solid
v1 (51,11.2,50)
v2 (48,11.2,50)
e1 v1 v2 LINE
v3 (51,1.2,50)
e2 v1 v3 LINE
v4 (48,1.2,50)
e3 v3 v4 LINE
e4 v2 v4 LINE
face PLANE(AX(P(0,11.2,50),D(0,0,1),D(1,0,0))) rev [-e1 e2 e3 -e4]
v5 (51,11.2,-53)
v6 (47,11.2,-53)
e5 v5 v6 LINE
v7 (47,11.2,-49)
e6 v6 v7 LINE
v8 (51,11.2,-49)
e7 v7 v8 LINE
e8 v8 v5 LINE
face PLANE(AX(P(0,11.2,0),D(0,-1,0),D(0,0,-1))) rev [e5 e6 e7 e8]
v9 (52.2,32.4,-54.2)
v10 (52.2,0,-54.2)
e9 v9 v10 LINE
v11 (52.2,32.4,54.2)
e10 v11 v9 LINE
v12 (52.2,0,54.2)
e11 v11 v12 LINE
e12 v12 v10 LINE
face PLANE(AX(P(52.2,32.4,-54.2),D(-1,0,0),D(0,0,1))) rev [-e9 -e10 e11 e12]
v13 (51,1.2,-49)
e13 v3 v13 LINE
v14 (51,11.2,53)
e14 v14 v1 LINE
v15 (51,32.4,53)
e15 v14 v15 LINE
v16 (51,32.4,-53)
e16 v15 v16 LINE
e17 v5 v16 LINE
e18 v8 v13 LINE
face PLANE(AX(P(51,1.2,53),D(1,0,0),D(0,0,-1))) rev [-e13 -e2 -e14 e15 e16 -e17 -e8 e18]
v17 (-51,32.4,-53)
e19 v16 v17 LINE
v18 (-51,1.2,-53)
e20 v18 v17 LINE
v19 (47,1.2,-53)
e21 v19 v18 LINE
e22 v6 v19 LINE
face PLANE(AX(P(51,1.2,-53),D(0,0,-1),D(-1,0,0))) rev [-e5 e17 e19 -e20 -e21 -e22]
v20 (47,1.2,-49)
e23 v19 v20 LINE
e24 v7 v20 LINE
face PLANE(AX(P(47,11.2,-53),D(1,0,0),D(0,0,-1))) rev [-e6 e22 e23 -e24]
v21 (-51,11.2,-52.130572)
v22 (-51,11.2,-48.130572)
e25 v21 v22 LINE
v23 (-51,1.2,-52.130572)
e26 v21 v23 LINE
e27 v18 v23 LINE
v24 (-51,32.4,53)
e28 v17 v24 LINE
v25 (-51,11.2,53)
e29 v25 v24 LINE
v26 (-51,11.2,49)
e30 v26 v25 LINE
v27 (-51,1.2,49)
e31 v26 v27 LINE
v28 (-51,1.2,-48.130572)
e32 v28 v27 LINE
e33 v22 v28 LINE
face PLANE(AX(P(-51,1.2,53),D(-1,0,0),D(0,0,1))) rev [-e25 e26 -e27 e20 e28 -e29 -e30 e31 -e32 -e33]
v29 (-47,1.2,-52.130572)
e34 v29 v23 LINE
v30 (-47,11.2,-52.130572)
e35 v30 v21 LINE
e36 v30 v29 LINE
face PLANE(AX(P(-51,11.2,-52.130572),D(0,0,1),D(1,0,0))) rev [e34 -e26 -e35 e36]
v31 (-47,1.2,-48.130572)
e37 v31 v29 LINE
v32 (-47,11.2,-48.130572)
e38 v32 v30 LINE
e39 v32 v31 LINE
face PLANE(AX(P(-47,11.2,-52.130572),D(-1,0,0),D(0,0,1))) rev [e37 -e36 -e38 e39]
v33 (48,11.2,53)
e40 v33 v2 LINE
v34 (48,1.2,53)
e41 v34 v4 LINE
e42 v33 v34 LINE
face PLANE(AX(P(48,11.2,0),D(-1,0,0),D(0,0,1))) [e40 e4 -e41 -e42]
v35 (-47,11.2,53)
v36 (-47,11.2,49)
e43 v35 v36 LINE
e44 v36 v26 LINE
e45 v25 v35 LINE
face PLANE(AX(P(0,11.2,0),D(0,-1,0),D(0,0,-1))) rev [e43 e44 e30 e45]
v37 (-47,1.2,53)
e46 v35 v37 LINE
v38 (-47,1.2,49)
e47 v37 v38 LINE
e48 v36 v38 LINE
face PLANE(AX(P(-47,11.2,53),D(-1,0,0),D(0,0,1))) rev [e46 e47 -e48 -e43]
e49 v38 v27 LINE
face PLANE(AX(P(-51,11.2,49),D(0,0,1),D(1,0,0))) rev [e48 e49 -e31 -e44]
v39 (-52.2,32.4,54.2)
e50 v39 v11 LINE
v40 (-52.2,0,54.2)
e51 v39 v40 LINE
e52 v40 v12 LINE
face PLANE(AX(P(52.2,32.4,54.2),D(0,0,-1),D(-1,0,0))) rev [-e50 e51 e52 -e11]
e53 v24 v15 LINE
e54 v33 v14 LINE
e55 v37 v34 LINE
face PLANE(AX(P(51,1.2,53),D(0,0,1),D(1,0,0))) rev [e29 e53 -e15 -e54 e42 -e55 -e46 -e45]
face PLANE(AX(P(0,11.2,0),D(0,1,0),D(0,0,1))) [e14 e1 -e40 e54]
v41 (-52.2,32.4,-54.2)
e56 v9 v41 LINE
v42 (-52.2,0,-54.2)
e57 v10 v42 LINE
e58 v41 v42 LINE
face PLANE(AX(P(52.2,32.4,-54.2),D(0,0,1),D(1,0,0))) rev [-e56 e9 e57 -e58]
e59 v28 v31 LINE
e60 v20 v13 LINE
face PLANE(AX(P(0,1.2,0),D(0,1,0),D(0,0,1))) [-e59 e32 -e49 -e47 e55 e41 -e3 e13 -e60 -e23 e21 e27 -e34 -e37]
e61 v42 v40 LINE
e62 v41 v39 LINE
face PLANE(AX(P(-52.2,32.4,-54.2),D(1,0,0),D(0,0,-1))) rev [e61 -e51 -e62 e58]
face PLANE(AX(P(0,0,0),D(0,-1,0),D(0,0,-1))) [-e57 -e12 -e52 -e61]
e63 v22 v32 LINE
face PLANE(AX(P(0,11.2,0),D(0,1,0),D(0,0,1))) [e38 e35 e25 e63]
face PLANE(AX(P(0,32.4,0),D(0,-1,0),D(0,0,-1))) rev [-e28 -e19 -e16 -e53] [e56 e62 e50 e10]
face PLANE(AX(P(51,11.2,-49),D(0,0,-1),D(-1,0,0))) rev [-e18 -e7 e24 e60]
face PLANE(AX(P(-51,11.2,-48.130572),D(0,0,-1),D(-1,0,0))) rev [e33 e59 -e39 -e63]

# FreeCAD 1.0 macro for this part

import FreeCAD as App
import Part
import Sketcher

V = App.Vector
Q = App.Units.Quantity

doc = App.newDocument("Part")
params = doc.addObject("Spreadsheet::Sheet", "Params")
for row, (alias, value) in enumerate([
    ("sketch1_width", "104.4 mm"),
    ("sketch1_height", "108.4 mm"),
    ("pad1_length", "32.4 mm"),
    ("sketch2_width", "102 mm"),
    ("sketch2_height", "106 mm"),
    ("pocket1_length", "31.2 mm"),
    ("sketch3_width", "3 mm"),
    ("pad2_length", "10 mm"),
    ("sketch4_width", "4 mm"),
    ("pad3_length", "10 mm"),
    ("sketch5_width", "4 mm"),
    ("pad4_length", "10 mm"),
    ("sketch6_width", "4 mm"),
    ("pad5_length", "10 mm"),
], start=1):
    params.set(f"A{row}", alias)
    params.set(f"B{row}", "=" + value)
    params.setAlias(f"B{row}", alias)

body = doc.addObject("PartDesign::Body", "Body")

sketch1 = body.newObject("Sketcher::SketchObject", "Sketch")
sketch1.AttachmentSupport = (doc.getObject("XZ_Plane"), [""])
sketch1.MapMode = "FlatFace"
sketch1.addGeometry([
    Part.LineSegment(V(-52, -54, 0), V(-52, 54, 0)),
    Part.LineSegment(V(-52, 54, 0), V(52, 54, 0)),
    Part.LineSegment(V(52, 54, 0), V(52, -54, 0)),
    Part.LineSegment(V(52, -54, 0), V(-52, -54, 0)),
], False)
sketch1.addConstraint([
    Sketcher.Constraint("Coincident", 0, 2, 1, 1),
    Sketcher.Constraint("Coincident", 1, 2, 2, 1),
    Sketcher.Constraint("Coincident", 2, 2, 3, 1),
    Sketcher.Constraint("Coincident", 3, 2, 0, 1),
    Sketcher.Constraint("Vertical", 0),
    Sketcher.Constraint("Horizontal", 1),
    Sketcher.Constraint("Vertical", 2),
    Sketcher.Constraint("Horizontal", 3),
    Sketcher.Constraint("Symmetric", 0, 2, 2, 2, -1, 1),
    Sketcher.Constraint("DistanceX", 1, 1, 1, 2, Q("104.4 mm")),
    Sketcher.Constraint("DistanceY", 0, 1, 0, 2, Q("108.4 mm")),
])
sketch1.setExpression("Constraints[9]", "Params.sketch1_width")
sketch1.setExpression("Constraints[10]", "Params.sketch1_height")
pad1 = body.newObject("PartDesign::Pad", "Pad")
pad1.Profile = sketch1
pad1.setExpression("Length", "Params.pad1_length")
pad1.Reversed = True

sketch2 = body.newObject("Sketcher::SketchObject", "Sketch001")
sketch2.AttachmentSupport = (doc.getObject("XZ_Plane"), [""])
sketch2.MapMode = "FlatFace"
sketch2.AttachmentOffset = App.Placement(V(0, 0, -32.4), App.Rotation())
sketch2.addGeometry([
    Part.LineSegment(V(-51, -53, 0), V(-51, 53, 0)),
    Part.LineSegment(V(-51, 53, 0), V(51, 53, 0)),
    Part.LineSegment(V(51, 53, 0), V(51, -53, 0)),
    Part.LineSegment(V(51, -53, 0), V(-51, -53, 0)),
], False)
sketch2.addConstraint([
    Sketcher.Constraint("Coincident", 0, 2, 1, 1),
    Sketcher.Constraint("Coincident", 1, 2, 2, 1),
    Sketcher.Constraint("Coincident", 2, 2, 3, 1),
    Sketcher.Constraint("Coincident", 3, 2, 0, 1),
    Sketcher.Constraint("Vertical", 0),
    Sketcher.Constraint("Horizontal", 1),
    Sketcher.Constraint("Vertical", 2),
    Sketcher.Constraint("Horizontal", 3),
    Sketcher.Constraint("Symmetric", 0, 2, 2, 2, -1, 1),
    Sketcher.Constraint("DistanceX", 1, 1, 1, 2, Q("102 mm")),
    Sketcher.Constraint("DistanceY", 0, 1, 0, 2, Q("106 mm")),
])
sketch2.setExpression("Constraints[9]", "Params.sketch2_width")
sketch2.setExpression("Constraints[10]", "Params.sketch2_height")
pocket1 = body.newObject("PartDesign::Pocket", "Pocket")
pocket1.Profile = sketch2
pocket1.setExpression("Length", "Params.pocket1_length")
pocket1.Reversed = True

sketch3 = body.newObject("Sketcher::SketchObject", "Sketch002")
sketch3.AttachmentSupport = (doc.getObject("XZ_Plane"), [""])
sketch3.MapMode = "FlatFace"
sketch3.AttachmentOffset = App.Placement(V(0, 0, -1.2), App.Rotation())
sketch3.addGeometry([
    Part.LineSegment(V(48, 53, 0), V(51, 53, 0)),
    Part.LineSegment(V(51, 53, 0), V(51, 50, 0)),
    Part.LineSegment(V(51, 50, 0), V(48, 50, 0)),
    Part.LineSegment(V(48, 50, 0), V(48, 53, 0)),
], False)
sketch3.addConstraint([
    Sketcher.Constraint("Coincident", 0, 2, 1, 1),
    Sketcher.Constraint("Coincident", 1, 2, 2, 1),
    Sketcher.Constraint("Coincident", 2, 2, 3, 1),
    Sketcher.Constraint("Coincident", 3, 2, 0, 1),
    Sketcher.Constraint("Horizontal", 0),
    Sketcher.Constraint("Vertical", 1),
    Sketcher.Constraint("Horizontal", 2),
    Sketcher.Constraint("Vertical", 3),
    Sketcher.Constraint("Equal", 2, 1),
    Sketcher.Constraint("DistanceX", 0, 1, 0, 2, Q("3 mm")),
    Sketcher.Constraint("DistanceX", -1, 1, 0, 2, Q("51 mm")),
    Sketcher.Constraint("DistanceY", -1, 1, 0, 2, Q("53 mm")),
])
sketch3.setExpression("Constraints[9]", "Params.sketch3_width")
pad2 = body.newObject("PartDesign::Pad", "Pad001")
pad2.Profile = sketch3
pad2.setExpression("Length", "Params.pad2_length")
pad2.Reversed = True

sketch4 = body.newObject("Sketcher::SketchObject", "Sketch003")
sketch4.AttachmentSupport = (doc.getObject("XZ_Plane"), [""])
sketch4.MapMode = "FlatFace"
sketch4.AttachmentOffset = App.Placement(V(0, 0, -1.2), App.Rotation())
sketch4.addGeometry([
    Part.LineSegment(V(47, -53, 0), V(47, -49, 0)),
    Part.LineSegment(V(47, -49, 0), V(51, -49, 0)),
    Part.LineSegment(V(51, -49, 0), V(51, -53, 0)),
    Part.LineSegment(V(51, -53, 0), V(47, -53, 0)),
], False)
sketch4.addConstraint([
    Sketcher.Constraint("Coincident", 0, 2, 1, 1),
    Sketcher.Constraint("Coincident", 1, 2, 2, 1),
    Sketcher.Constraint("Coincident", 2, 2, 3, 1),
    Sketcher.Constraint("Coincident", 3, 2, 0, 1),
    Sketcher.Constraint("Vertical", 0),
    Sketcher.Constraint("Horizontal", 1),
    Sketcher.Constraint("Vertical", 2),
    Sketcher.Constraint("Horizontal", 3),
    Sketcher.Constraint("Equal", 3, 0),
    Sketcher.Constraint("DistanceX", 1, 1, 1, 2, Q("4 mm")),
    Sketcher.Constraint("DistanceX", -1, 1, 0, 2, Q("47 mm")),
    Sketcher.Constraint("DistanceY", 0, 2, -1, 1, Q("49 mm")),
])
sketch4.setExpression("Constraints[9]", "Params.sketch4_width")
pad3 = body.newObject("PartDesign::Pad", "Pad002")
pad3.Profile = sketch4
pad3.setExpression("Length", "Params.pad3_length")
pad3.Reversed = True

sketch5 = body.newObject("Sketcher::SketchObject", "Sketch004")
sketch5.AttachmentSupport = (doc.getObject("XZ_Plane"), [""])
sketch5.MapMode = "FlatFace"
sketch5.AttachmentOffset = App.Placement(V(0, 0, -1.2), App.Rotation())
sketch5.addGeometry([
    Part.LineSegment(V(-51, 49, 0), V(-51, 53, 0)),
    Part.LineSegment(V(-51, 53, 0), V(-47, 53, 0)),
    Part.LineSegment(V(-47, 53, 0), V(-47, 49, 0)),
    Part.LineSegment(V(-47, 49, 0), V(-51, 49, 0)),
], False)
sketch5.addConstraint([
    Sketcher.Constraint("Coincident", 0, 2, 1, 1),
    Sketcher.Constraint("Coincident", 1, 2, 2, 1),
    Sketcher.Constraint("Coincident", 2, 2, 3, 1),
    Sketcher.Constraint("Coincident", 3, 2, 0, 1),
    Sketcher.Constraint("Vertical", 0),
    Sketcher.Constraint("Horizontal", 1),
    Sketcher.Constraint("Vertical", 2),
    Sketcher.Constraint("Horizontal", 3),
    Sketcher.Constraint("Equal", 3, 0),
    Sketcher.Constraint("DistanceX", 1, 1, 1, 2, Q("4 mm")),
    Sketcher.Constraint("DistanceX", 0, 2, -1, 1, Q("51 mm")),
    Sketcher.Constraint("DistanceY", -1, 1, 0, 2, Q("53 mm")),
])
sketch5.setExpression("Constraints[9]", "Params.sketch5_width")
pad4 = body.newObject("PartDesign::Pad", "Pad003")
pad4.Profile = sketch5
pad4.setExpression("Length", "Params.pad4_length")
pad4.Reversed = True

sketch6 = body.newObject("Sketcher::SketchObject", "Sketch005")
sketch6.AttachmentSupport = (doc.getObject("XZ_Plane"), [""])
sketch6.MapMode = "FlatFace"
sketch6.AttachmentOffset = App.Placement(V(0, 0, -1.2), App.Rotation())
sketch6.addGeometry([
    Part.LineSegment(V(-51, -52.1, 0), V(-51, -48.1, 0)),
    Part.LineSegment(V(-51, -48.1, 0), V(-47, -48.1, 0)),
    Part.LineSegment(V(-47, -48.1, 0), V(-47, -52.1, 0)),
    Part.LineSegment(V(-47, -52.1, 0), V(-51, -52.1, 0)),
], False)
sketch6.addConstraint([
    Sketcher.Constraint("Coincident", 0, 2, 1, 1),
    Sketcher.Constraint("Coincident", 1, 2, 2, 1),
    Sketcher.Constraint("Coincident", 2, 2, 3, 1),
    Sketcher.Constraint("Coincident", 3, 2, 0, 1),
    Sketcher.Constraint("Vertical", 0),
    Sketcher.Constraint("Horizontal", 1),
    Sketcher.Constraint("Vertical", 2),
    Sketcher.Constraint("Horizontal", 3),
    Sketcher.Constraint("Equal", 3, 0),
    Sketcher.Constraint("DistanceX", 1, 1, 1, 2, Q("4 mm")),
    Sketcher.Constraint("DistanceX", 0, 2, -1, 1, Q("51 mm")),
    Sketcher.Constraint("DistanceY", 0, 2, -1, 1, Q("48.130572 mm")),
])
sketch6.setExpression("Constraints[9]", "Params.sketch6_width")
pad5 = body.newObject("PartDesign::Pad", "Pad004")
pad5.Profile = sketch6
pad5.setExpression("Length", "Params.pad5_length")
pad5.Reversed = True

doc.recompute()
